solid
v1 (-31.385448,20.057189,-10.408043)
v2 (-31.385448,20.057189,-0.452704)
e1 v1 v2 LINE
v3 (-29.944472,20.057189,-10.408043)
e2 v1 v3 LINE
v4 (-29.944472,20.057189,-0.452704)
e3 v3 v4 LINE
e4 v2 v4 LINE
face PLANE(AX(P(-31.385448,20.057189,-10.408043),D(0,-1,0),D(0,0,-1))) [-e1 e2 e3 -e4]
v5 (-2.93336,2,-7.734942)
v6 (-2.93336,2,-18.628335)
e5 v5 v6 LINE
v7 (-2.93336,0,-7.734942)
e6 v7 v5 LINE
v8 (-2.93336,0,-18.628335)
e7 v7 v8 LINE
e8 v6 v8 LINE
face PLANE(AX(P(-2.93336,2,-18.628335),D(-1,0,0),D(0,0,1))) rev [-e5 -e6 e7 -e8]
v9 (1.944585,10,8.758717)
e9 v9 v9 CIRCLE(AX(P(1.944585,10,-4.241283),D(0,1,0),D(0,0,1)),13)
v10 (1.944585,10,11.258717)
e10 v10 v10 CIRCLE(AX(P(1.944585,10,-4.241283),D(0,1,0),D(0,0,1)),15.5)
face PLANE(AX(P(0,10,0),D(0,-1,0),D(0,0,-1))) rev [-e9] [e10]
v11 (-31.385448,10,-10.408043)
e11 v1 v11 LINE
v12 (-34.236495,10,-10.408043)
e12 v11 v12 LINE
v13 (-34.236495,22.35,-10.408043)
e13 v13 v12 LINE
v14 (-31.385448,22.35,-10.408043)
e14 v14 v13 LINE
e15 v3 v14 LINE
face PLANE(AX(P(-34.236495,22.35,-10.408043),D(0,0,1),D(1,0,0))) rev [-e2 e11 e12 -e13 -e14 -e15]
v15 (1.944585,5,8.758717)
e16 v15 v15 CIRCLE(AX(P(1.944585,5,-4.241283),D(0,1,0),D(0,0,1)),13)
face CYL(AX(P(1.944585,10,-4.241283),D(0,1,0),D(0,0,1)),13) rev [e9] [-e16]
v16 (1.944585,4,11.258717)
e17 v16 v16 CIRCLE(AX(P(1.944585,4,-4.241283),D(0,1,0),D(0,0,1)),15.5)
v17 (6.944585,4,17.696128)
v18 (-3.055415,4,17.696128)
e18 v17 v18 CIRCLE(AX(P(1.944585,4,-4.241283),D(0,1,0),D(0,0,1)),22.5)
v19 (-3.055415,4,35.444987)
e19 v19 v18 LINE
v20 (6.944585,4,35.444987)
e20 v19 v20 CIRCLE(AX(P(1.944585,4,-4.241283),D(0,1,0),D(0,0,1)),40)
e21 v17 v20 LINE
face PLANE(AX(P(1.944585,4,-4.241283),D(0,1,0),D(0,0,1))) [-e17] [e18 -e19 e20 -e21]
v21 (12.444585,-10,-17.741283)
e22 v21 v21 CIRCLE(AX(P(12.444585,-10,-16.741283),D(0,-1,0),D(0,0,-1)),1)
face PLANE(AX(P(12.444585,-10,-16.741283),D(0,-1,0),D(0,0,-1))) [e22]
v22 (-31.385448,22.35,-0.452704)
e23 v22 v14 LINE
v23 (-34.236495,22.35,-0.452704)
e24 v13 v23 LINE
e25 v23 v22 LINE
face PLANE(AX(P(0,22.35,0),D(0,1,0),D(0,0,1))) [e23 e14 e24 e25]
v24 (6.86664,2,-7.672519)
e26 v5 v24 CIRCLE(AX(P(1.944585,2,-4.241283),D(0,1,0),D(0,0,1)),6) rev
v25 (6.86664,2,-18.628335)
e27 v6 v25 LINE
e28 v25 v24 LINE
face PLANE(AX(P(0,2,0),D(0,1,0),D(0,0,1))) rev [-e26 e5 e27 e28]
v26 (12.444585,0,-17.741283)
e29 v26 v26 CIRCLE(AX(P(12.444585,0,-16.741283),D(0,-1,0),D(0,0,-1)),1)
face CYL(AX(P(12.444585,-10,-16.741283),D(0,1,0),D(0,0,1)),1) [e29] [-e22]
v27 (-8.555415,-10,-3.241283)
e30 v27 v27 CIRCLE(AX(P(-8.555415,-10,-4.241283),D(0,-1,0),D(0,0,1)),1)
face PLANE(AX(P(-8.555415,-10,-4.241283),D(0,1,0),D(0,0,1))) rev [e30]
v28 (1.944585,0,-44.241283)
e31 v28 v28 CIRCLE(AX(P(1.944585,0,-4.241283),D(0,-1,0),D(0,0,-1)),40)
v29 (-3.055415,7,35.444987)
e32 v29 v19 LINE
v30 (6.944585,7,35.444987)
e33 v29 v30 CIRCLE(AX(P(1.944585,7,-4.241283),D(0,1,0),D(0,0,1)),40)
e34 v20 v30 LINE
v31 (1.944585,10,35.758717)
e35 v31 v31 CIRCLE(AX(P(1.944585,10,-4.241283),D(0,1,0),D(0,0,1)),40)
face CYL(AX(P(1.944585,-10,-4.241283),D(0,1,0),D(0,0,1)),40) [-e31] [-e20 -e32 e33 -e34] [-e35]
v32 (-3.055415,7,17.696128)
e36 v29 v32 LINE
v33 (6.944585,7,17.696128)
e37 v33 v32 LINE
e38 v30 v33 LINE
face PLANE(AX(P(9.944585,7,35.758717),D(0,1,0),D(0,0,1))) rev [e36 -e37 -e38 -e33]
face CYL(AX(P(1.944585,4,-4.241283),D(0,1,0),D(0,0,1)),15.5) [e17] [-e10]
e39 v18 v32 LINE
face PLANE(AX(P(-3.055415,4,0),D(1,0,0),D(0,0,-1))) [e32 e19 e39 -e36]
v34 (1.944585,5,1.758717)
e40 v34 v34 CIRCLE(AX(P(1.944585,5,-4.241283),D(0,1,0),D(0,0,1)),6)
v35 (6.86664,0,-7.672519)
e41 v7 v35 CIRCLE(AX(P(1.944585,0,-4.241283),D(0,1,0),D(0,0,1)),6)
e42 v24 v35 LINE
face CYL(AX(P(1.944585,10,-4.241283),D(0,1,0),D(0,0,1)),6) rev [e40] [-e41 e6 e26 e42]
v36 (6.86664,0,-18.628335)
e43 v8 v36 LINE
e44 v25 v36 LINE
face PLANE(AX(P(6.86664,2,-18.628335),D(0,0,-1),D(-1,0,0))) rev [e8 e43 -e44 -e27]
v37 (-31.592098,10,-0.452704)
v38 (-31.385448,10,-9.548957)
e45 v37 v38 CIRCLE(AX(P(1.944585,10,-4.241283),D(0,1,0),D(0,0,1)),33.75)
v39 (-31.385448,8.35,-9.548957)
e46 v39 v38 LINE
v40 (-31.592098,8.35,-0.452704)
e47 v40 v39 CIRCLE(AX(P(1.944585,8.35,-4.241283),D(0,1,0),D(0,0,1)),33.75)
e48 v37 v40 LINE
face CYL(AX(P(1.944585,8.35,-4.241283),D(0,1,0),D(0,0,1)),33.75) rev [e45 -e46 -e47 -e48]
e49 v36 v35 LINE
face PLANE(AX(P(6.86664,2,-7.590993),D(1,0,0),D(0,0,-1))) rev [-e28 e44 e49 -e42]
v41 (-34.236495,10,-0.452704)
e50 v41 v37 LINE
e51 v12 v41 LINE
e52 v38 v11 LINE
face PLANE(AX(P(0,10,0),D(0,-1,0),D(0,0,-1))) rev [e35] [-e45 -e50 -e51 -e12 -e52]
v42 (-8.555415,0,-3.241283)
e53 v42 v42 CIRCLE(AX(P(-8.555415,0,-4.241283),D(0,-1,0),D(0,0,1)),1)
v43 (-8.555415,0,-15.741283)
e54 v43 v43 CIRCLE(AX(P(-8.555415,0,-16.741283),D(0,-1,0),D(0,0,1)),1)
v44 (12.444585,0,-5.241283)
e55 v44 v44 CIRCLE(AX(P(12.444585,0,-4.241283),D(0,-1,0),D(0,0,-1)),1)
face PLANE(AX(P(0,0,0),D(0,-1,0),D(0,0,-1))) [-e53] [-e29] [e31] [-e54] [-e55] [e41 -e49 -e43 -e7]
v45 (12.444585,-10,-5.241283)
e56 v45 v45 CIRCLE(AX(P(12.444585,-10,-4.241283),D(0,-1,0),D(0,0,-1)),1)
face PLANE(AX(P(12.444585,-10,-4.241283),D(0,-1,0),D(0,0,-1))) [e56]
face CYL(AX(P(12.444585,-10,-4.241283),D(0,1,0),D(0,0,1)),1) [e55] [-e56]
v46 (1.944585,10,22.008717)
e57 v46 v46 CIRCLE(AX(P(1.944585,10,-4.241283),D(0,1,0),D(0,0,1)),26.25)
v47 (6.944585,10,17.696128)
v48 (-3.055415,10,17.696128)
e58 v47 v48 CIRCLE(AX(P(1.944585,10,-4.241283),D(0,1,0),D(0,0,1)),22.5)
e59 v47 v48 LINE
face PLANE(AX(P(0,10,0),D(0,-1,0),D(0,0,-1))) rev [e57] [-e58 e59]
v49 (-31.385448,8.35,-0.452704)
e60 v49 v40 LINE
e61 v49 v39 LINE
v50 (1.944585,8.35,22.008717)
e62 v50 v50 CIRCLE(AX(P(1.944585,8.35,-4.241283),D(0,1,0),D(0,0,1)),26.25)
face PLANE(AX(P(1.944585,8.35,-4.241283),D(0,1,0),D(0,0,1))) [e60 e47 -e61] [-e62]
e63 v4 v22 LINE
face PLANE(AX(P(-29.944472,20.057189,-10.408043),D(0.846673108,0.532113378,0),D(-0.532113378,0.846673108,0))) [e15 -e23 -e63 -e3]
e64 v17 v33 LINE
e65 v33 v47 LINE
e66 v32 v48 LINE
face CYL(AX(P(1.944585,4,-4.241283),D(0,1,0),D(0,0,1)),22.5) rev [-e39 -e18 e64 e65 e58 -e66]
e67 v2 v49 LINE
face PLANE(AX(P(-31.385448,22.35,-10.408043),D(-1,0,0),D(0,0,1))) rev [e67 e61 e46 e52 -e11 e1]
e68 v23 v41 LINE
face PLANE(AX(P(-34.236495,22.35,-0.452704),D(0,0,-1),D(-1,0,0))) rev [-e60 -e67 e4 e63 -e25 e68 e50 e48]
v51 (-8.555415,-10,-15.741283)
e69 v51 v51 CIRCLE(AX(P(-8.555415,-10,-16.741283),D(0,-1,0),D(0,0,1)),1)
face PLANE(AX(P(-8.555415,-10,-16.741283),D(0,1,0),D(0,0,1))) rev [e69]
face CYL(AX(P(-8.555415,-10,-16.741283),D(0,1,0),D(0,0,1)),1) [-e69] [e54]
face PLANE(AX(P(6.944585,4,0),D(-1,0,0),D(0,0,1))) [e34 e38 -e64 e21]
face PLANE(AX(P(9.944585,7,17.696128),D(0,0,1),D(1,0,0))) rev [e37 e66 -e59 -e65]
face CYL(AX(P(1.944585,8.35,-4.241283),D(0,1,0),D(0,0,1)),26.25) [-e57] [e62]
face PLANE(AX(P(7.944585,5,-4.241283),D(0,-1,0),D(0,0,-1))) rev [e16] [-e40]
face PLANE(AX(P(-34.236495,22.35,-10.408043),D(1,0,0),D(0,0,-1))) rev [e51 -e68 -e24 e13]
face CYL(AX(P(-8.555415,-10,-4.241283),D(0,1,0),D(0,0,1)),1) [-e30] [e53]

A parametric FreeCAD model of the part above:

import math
import FreeCAD as App
import Part
import Sketcher

doc = App.newDocument("Part")
body = doc.addObject("PartDesign::Body", "Body")

sketch1 = body.newObject("Sketcher::SketchObject", "Sketch")
sketch1.AttachmentSupport = (doc.getObject("XZ_Plane"), [""])
sketch1.MapMode = "FlatFace"
sketch1.addGeometry(Part.LineSegment(App.Vector(-38.055415, -44.241283, 0), App.Vector(-38.055415, 35.758717, 0)), False)
sketch1.addGeometry(Part.LineSegment(App.Vector(-38.055415, 35.758717, 0), App.Vector(41.944585, 35.758717, 0)), False)
sketch1.addGeometry(Part.LineSegment(App.Vector(41.944585, 35.758717, 0), App.Vector(41.944585, -44.241283, 0)), False)
sketch1.addGeometry(Part.LineSegment(App.Vector(41.944585, -44.241283, 0), App.Vector(-38.055415, -44.241283, 0)), False)
sketch1.addConstraint(Sketcher.Constraint("Coincident", 0, 2, 1, 1))
sketch1.addConstraint(Sketcher.Constraint("Coincident", 1, 2, 2, 1))
sketch1.addConstraint(Sketcher.Constraint("Coincident", 2, 2, 3, 1))
sketch1.addConstraint(Sketcher.Constraint("Coincident", 3, 2, 0, 1))
sketch1.addConstraint(Sketcher.Constraint("Vertical", 0))
sketch1.addConstraint(Sketcher.Constraint("Horizontal", 1))
sketch1.addConstraint(Sketcher.Constraint("Vertical", 2))
sketch1.addConstraint(Sketcher.Constraint("Horizontal", 3))
sketch1.addConstraint(Sketcher.Constraint("Equal", 3, 0))
sketch1.addConstraint(Sketcher.Constraint("DistanceX", 1, 1, 1, 2, 80.0))
sketch1.addConstraint(Sketcher.Constraint("DistanceX", 0, 2, -1, 1, 38.055415))
sketch1.addConstraint(Sketcher.Constraint("DistanceY", -1, 1, 0, 2, 35.758717))
pad1 = body.newObject("PartDesign::Pad", "Pad")
pad1.Profile = sketch1
pad1.Length = 10
pad1.Reversed = True

sketch2 = body.newObject("Sketcher::SketchObject", "Sketch001")
sketch2.AttachmentSupport = (doc.getObject("XZ_Plane"), [""])
sketch2.MapMode = "FlatFace"
sketch2.AttachmentOffset = App.Placement(App.Vector(0, 0, -10), App.Rotation())
sketch2.addGeometry(Part.Circle(App.Vector(1.944585, -4.241283, 0), App.Vector(0, 0, 1), 6), False)
sketch2.addConstraint(Sketcher.Constraint("Diameter", 0, 12.0))
sketch2.addConstraint(Sketcher.Constraint("DistanceX", -1, 1, 0, 3, 1.944585))
sketch2.addConstraint(Sketcher.Constraint("DistanceY", 0, 3, -1, 1, 4.241283))
doc.recompute()
hole = body.newObject("PartDesign::Hole", "Hole")
hole.Profile = sketch2
hole.ThreadType = "None"
hole.Diameter = 12
hole.DepthType = "ThroughAll"
hole.HoleCutType = "Counterbore"
hole.HoleCutDiameter = 26
hole.HoleCutDepth = 5
hole.Reversed = True

sketch3 = body.newObject("Sketcher::SketchObject", "Sketch002")
sketch3.AttachmentSupport = (doc.getObject("XZ_Plane"), [""])
sketch3.MapMode = "FlatFace"
sketch3.addGeometry(Part.Circle(App.Vector(12.444585, -16.741283, 0), App.Vector(0, 0, 1), 1), False)
sketch3.addGeometry(Part.Circle(App.Vector(12.444585, -4.241283, 0), App.Vector(0, 0, 1), 1), False)
sketch3.addGeometry(Part.Circle(App.Vector(-8.555415, -16.741283, 0), App.Vector(0, 0, 1), 1), False)
sketch3.addGeometry(Part.Circle(App.Vector(-8.555415, -4.241283, 0), App.Vector(0, 0, 1), 1), False)
sketch3.addConstraint(Sketcher.Constraint("Equal", 0, 1))
sketch3.addConstraint(Sketcher.Constraint("Equal", 1, 2))
sketch3.addConstraint(Sketcher.Constraint("Equal", 2, 3))
sketch3.addConstraint(Sketcher.Constraint("Horizontal", 0, 3, 2, 3))
sketch3.addConstraint(Sketcher.Constraint("Horizontal", 1, 3, 3, 3))
sketch3.addConstraint(Sketcher.Constraint("Vertical", 0, 3, 1, 3))
sketch3.addConstraint(Sketcher.Constraint("Vertical", 2, 3, 3, 3))
sketch3.addConstraint(Sketcher.Constraint("Diameter", 0, 2.0))
sketch3.addConstraint(Sketcher.Constraint("DistanceX", 2, 3, 0, 3, 21.0))
sketch3.addConstraint(Sketcher.Constraint("DistanceY", 0, 3, 1, 3, 12.5))
sketch3.addConstraint(Sketcher.Constraint("DistanceX", -1, 1, 0, 3, 12.444585))
sketch3.addConstraint(Sketcher.Constraint("DistanceY", 0, 3, -1, 1, 16.741283))
pad2 = body.newObject("PartDesign::Pad", "Pad001")
pad2.Profile = sketch3
pad2.Length = 10

sketch4 = body.newObject("Sketcher::SketchObject", "Sketch003")
sketch4.AttachmentSupport = (doc.getObject("XZ_Plane"), [""])
sketch4.MapMode = "FlatFace"
sketch4.AttachmentOffset = App.Placement(App.Vector(0, 0, -10), App.Rotation())
sketch4.addGeometry(Part.Circle(App.Vector(1.944585, -4.241283, 0), App.Vector(0, 0, 1), 22.5), False)
sketch4.addGeometry(Part.Circle(App.Vector(1.944585, -4.241283, 0), App.Vector(0, 0, 1), 15.5), False)
sketch4.addConstraint(Sketcher.Constraint("Coincident", 1, 3, 0, 3))
sketch4.addConstraint(Sketcher.Constraint("Diameter", 0, 45.0))
sketch4.addConstraint(Sketcher.Constraint("Diameter", 1, 31.0))
sketch4.addConstraint(Sketcher.Constraint("DistanceX", -1, 1, 0, 3, 1.944585))
sketch4.addConstraint(Sketcher.Constraint("DistanceY", 0, 3, -1, 1, 4.241283))
pocket1 = body.newObject("PartDesign::Pocket", "Pocket")
pocket1.Profile = sketch4
pocket1.Length = 6
pocket1.Reversed = True

sketch5 = body.newObject("Sketcher::SketchObject", "Sketch004")
sketch5.AttachmentSupport = (doc.getObject("XZ_Plane"), [""])
sketch5.MapMode = "FlatFace"
sketch5.AttachmentOffset = App.Placement(App.Vector(0, 0, -10), App.Rotation())
sketch5.addGeometry(Part.LineSegment(App.Vector(6.944585, 35.758717, 0), App.Vector(6.944585, 17.696128, 0)), False)
sketch5.addGeometry(Part.ArcOfCircle(Part.Circle(App.Vector(1.944585, -4.241283, 0), App.Vector(0, 0, 1), 22.5), math.radians(77.160412), math.radians(102.839588)), False)
sketch5.addGeometry(Part.LineSegment(App.Vector(-3.055415, 17.696128, 0), App.Vector(-3.055415, 35.758717, 0)), False)
sketch5.addGeometry(Part.LineSegment(App.Vector(-3.055415, 35.758717, 0), App.Vector(6.944585, 35.758717, 0)), False)
sketch5.addConstraint(Sketcher.Constraint("Coincident", 0, 2, 1, 1))
sketch5.addConstraint(Sketcher.Constraint("Coincident", 1, 2, 2, 1))
sketch5.addConstraint(Sketcher.Constraint("Coincident", 2, 2, 3, 1))
sketch5.addConstraint(Sketcher.Constraint("Coincident", 3, 2, 0, 1))
sketch5.addConstraint(Sketcher.Constraint("Vertical", 0))
sketch5.addConstraint(Sketcher.Constraint("Vertical", 2))
sketch5.addConstraint(Sketcher.Constraint("Horizontal", 3))
sketch5.addConstraint(Sketcher.Constraint("Horizontal", 0, 2, 1, 2))
sketch5.addConstraint(Sketcher.Constraint("Radius", 1, 22.5))
sketch5.addConstraint(Sketcher.Constraint("DistanceX", 3, 1, 3, 2, 10.0))
sketch5.addConstraint(Sketcher.Constraint("DistanceY", 1, 3, 2, 2, 40.0))
sketch5.addConstraint(Sketcher.Constraint("DistanceX", -1, 1, 1, 3, 1.944585))
sketch5.addConstraint(Sketcher.Constraint("DistanceY", 1, 3, -1, 1, 4.241283))
pocket2 = body.newObject("PartDesign::Pocket", "Pocket001")
pocket2.Profile = sketch5
pocket2.Length = 6
pocket2.Reversed = True

sketch6 = body.newObject("Sketcher::SketchObject", "Sketch005")
sketch6.AttachmentSupport = (doc.getObject("YZ_Plane"), [""])
sketch6.MapMode = "FlatFace"
sketch6.AttachmentOffset = App.Placement(App.Vector(0, 0, -3.055415), App.Rotation())
sketch6.addGeometry(Part.LineSegment(App.Vector(10, 35.758717, 0), App.Vector(7, 35.758717, 0)), False)
sketch6.addGeometry(Part.LineSegment(App.Vector(7, 35.758717, 0), App.Vector(7, 17.696128, 0)), False)
sketch6.addGeometry(Part.LineSegment(App.Vector(7, 17.696128, 0), App.Vector(10, 17.696128, 0)), False)
sketch6.addGeometry(Part.LineSegment(App.Vector(10, 17.696128, 0), App.Vector(10, 35.758717, 0)), False)
sketch6.addConstraint(Sketcher.Constraint("Coincident", 0, 2, 1, 1))
sketch6.addConstraint(Sketcher.Constraint("Coincident", 1, 2, 2, 1))
sketch6.addConstraint(Sketcher.Constraint("Coincident", 2, 2, 3, 1))
sketch6.addConstraint(Sketcher.Constraint("Coincident", 3, 2, 0, 1))
sketch6.addConstraint(Sketcher.Constraint("Horizontal", 0))
sketch6.addConstraint(Sketcher.Constraint("Vertical", 1))
sketch6.addConstraint(Sketcher.Constraint("Horizontal", 2))
sketch6.addConstraint(Sketcher.Constraint("Vertical", 3))
sketch6.addConstraint(Sketcher.Constraint("DistanceX", 0, 2, 0, 1, 3.0))
sketch6.addConstraint(Sketcher.Constraint("DistanceX", -1, 1, 0, 2, 7.0))
sketch6.addConstraint(Sketcher.Constraint("DistanceY", 1, 2, 1, 1, 18.062589))
sketch6.addConstraint(Sketcher.Constraint("DistanceY", -1, 1, 0, 2, 35.758717))
pad3 = body.newObject("PartDesign::Pad", "Pad002")
pad3.Profile = sketch6
pad3.Length = 13

sketch7 = body.newObject("Sketcher::SketchObject", "Sketch006")
sketch7.AttachmentSupport = (doc.getObject("XZ_Plane"), [""])
sketch7.MapMode = "FlatFace"
sketch7.AttachmentOffset = App.Placement(App.Vector(0, 0, -10), App.Rotation())
sketch7.addGeometry(Part.Circle(App.Vector(1.944585, -4.241283, 0), App.Vector(0, 0, 1), 33.75), False)
sketch7.addGeometry(Part.Circle(App.Vector(1.944585, -4.241283, 0), App.Vector(0, 0, 1), 26.25), False)
sketch7.addConstraint(Sketcher.Constraint("Coincident", 1, 3, 0, 3))
sketch7.addConstraint(Sketcher.Constraint("Diameter", 0, 67.5))
sketch7.addConstraint(Sketcher.Constraint("Diameter", 1, 52.5))
sketch7.addConstraint(Sketcher.Constraint("DistanceX", -1, 1, 0, 3, 1.944585))
sketch7.addConstraint(Sketcher.Constraint("DistanceY", 0, 3, -1, 1, 4.241283))
pocket3 = body.newObject("PartDesign::Pocket", "Pocket002")
pocket3.Profile = sketch7
pocket3.Length = 1.65
pocket3.Reversed = True

sketch8 = body.newObject("Sketcher::SketchObject", "Sketch007")
sketch8.AttachmentSupport = (doc.getObject("XZ_Plane"), [""])
sketch8.MapMode = "FlatFace"
sketch8.addGeometry(Part.LineSegment(App.Vector(-2.93336, -7.590993, 0), App.Vector(-2.93336, -18.628335, 0)), False)
sketch8.addGeometry(Part.LineSegment(App.Vector(-2.93336, -18.628335, 0), App.Vector(6.86664, -18.628335, 0)), False)
sketch8.addGeometry(Part.LineSegment(App.Vector(6.86664, -18.628335, 0), App.Vector(6.86664, -7.590993, 0)), False)
sketch8.addGeometry(Part.LineSegment(App.Vector(6.86664, -7.590993, 0), App.Vector(-2.93336, -7.590993, 0)), False)
sketch8.addConstraint(Sketcher.Constraint("Coincident", 0, 2, 1, 1))
sketch8.addConstraint(Sketcher.Constraint("Coincident", 1, 2, 2, 1))
sketch8.addConstraint(Sketcher.Constraint("Coincident", 2, 2, 3, 1))
sketch8.addConstraint(Sketcher.Constraint("Coincident", 3, 2, 0, 1))
sketch8.addConstraint(Sketcher.Constraint("Vertical", 0))
sketch8.addConstraint(Sketcher.Constraint("Horizontal", 1))
sketch8.addConstraint(Sketcher.Constraint("Vertical", 2))
sketch8.addConstraint(Sketcher.Constraint("Horizontal", 3))
sketch8.addConstraint(Sketcher.Constraint("DistanceX", 1, 1, 1, 2, 9.8))
sketch8.addConstraint(Sketcher.Constraint("DistanceY", 0, 2, 0, 1, 11.037342))
sketch8.addConstraint(Sketcher.Constraint("DistanceX", 0, 2, -1, 1, 2.93336))
sketch8.addConstraint(Sketcher.Constraint("DistanceY", 0, 2, -1, 1, 18.628335))
pocket4 = body.newObject("PartDesign::Pocket", "Pocket003")
pocket4.Profile = sketch8
pocket4.Length = 2

sketch9 = body.newObject("Sketcher::SketchObject", "Sketch008")
sketch9.AttachmentSupport = (doc.getObject("XZ_Plane"), [""])
sketch9.MapMode = "FlatFace"
sketch9.AttachmentOffset = App.Placement(App.Vector(0, 0, -10), App.Rotation())
sketch9.addGeometry(Part.ArcOfCircle(Part.Circle(App.Vector(1.944585, -4.241283, 0), App.Vector(0, 0, 1), 40), math.radians(180), math.radians(270)), False)
sketch9.addGeometry(Part.LineSegment(App.Vector(1.944585, -44.241283, 0), App.Vector(-38.055415, -44.241283, 0)), False)
sketch9.addGeometry(Part.LineSegment(App.Vector(-38.055415, -44.241283, 0), App.Vector(-38.055415, -4.241283, 0)), False)
sketch9.addGeometry(Part.ArcOfCircle(Part.Circle(App.Vector(1.944585, -4.241283, 0), App.Vector(0, 0, 1), 40), math.radians(90), math.radians(180)), False)
sketch9.addGeometry(Part.LineSegment(App.Vector(-38.055415, -4.241283, 0), App.Vector(-38.055415, 35.758717, 0)), False)
sketch9.addGeometry(Part.LineSegment(App.Vector(-38.055415, 35.758717, 0), App.Vector(1.944585, 35.758717, 0)), False)
sketch9.addGeometry(Part.LineSegment(App.Vector(41.944585, 35.758717, 0), App.Vector(41.944585, -4.241283, 0)), False)
sketch9.addGeometry(Part.ArcOfCircle(Part.Circle(App.Vector(1.944585, -4.241283, 0), App.Vector(0, 0, 1), 40), math.radians(0), math.radians(90)), False)
sketch9.addGeometry(Part.LineSegment(App.Vector(1.944585, 35.758717, 0), App.Vector(41.944585, 35.758717, 0)), False)
sketch9.addGeometry(Part.LineSegment(App.Vector(41.944585, -44.241283, 0), App.Vector(1.944585, -44.241283, 0)), False)
sketch9.addGeometry(Part.ArcOfCircle(Part.Circle(App.Vector(1.944585, -4.241283, 0), App.Vector(0, 0, 1), 40), math.radians(-90), math.radians(0)), False)
sketch9.addGeometry(Part.LineSegment(App.Vector(41.944585, -4.241283, 0), App.Vector(41.944585, -44.241283, 0)), False)
sketch9.addConstraint(Sketcher.Constraint("Tangent", 0, 2, 1, 1))
sketch9.addConstraint(Sketcher.Constraint("Coincident", 1, 2, 2, 1))
sketch9.addConstraint(Sketcher.Constraint("Tangent", 2, 2, 0, 1))
sketch9.addConstraint(Sketcher.Constraint("Tangent", 3, 2, 4, 1))
sketch9.addConstraint(Sketcher.Constraint("Coincident", 4, 2, 5, 1))
sketch9.addConstraint(Sketcher.Constraint("Tangent", 5, 2, 3, 1))
sketch9.addConstraint(Sketcher.Constraint("Tangent", 6, 2, 7, 1))
sketch9.addConstraint(Sketcher.Constraint("Tangent", 7, 2, 8, 1))
sketch9.addConstraint(Sketcher.Constraint("Coincident", 8, 2, 6, 1))
sketch9.addConstraint(Sketcher.Constraint("Tangent", 9, 2, 10, 1))
sketch9.addConstraint(Sketcher.Constraint("Tangent", 10, 2, 11, 1))
sketch9.addConstraint(Sketcher.Constraint("Coincident", 11, 2, 9, 1))
sketch9.addConstraint(Sketcher.Constraint("Horizontal", 1))
sketch9.addConstraint(Sketcher.Constraint("Vertical", 2))
sketch9.addConstraint(Sketcher.Constraint("Vertical", 4))
sketch9.addConstraint(Sketcher.Constraint("Horizontal", 5))
sketch9.addConstraint(Sketcher.Constraint("Vertical", 6))
sketch9.addConstraint(Sketcher.Constraint("Horizontal", 8))
sketch9.addConstraint(Sketcher.Constraint("Horizontal", 9))
sketch9.addConstraint(Sketcher.Constraint("Vertical", 11))
sketch9.addConstraint(Sketcher.Constraint("Coincident", 3, 3, 0, 3))
sketch9.addConstraint(Sketcher.Constraint("Coincident", 7, 3, 0, 3))
sketch9.addConstraint(Sketcher.Constraint("Coincident", 10, 3, 0, 3))
sketch9.addConstraint(Sketcher.Constraint("Equal", 0, 3))
sketch9.addConstraint(Sketcher.Constraint("Equal", 3, 7))
sketch9.addConstraint(Sketcher.Constraint("Equal", 7, 10))
sketch9.addConstraint(Sketcher.Constraint("Radius", 0, 40.0))
sketch9.addConstraint(Sketcher.Constraint("DistanceX", -1, 1, 0, 3, 1.944585))
sketch9.addConstraint(Sketcher.Constraint("DistanceY", 0, 3, -1, 1, 4.241283))
pocket5 = body.newObject("PartDesign::Pocket", "Pocket004")
pocket5.Profile = sketch9
pocket5.Length = 20
pocket5.Reversed = True

sketch10 = body.newObject("Sketcher::SketchObject", "Sketch009")
sketch10.AttachmentSupport = (doc.getObject("XZ_Plane"), [""])
sketch10.MapMode = "FlatFace"
sketch10.AttachmentOffset = App.Placement(App.Vector(0, 0, -8.35), App.Rotation())
sketch10.addGeometry(Part.LineSegment(App.Vector(-34.236495, -10.408043, 0), App.Vector(-34.236495, -0.452704, 0)), False)
sketch10.addGeometry(Part.LineSegment(App.Vector(-34.236495, -0.452704, 0), App.Vector(-31.385448, -0.452704, 0)), False)
sketch10.addGeometry(Part.LineSegment(App.Vector(-31.385448, -0.452704, 0), App.Vector(-31.385448, -10.408043, 0)), False)
sketch10.addGeometry(Part.LineSegment(App.Vector(-31.385448, -10.408043, 0), App.Vector(-34.236495, -10.408043, 0)), False)
sketch10.addConstraint(Sketcher.Constraint("Coincident", 0, 2, 1, 1))
sketch10.addConstraint(Sketcher.Constraint("Coincident", 1, 2, 2, 1))
sketch10.addConstraint(Sketcher.Constraint("Coincident", 2, 2, 3, 1))
sketch10.addConstraint(Sketcher.Constraint("Coincident", 3, 2, 0, 1))
sketch10.addConstraint(Sketcher.Constraint("Vertical", 0))
sketch10.addConstraint(Sketcher.Constraint("Horizontal", 1))
sketch10.addConstraint(Sketcher.Constraint("Vertical", 2))
sketch10.addConstraint(Sketcher.Constraint("Horizontal", 3))
sketch10.addConstraint(Sketcher.Constraint("DistanceY", 0, 1, 0, 2, 9.955339))
sketch10.addConstraint(Sketcher.Constraint("DistanceX", 1, 1, 1, 2, 2.851048))
sketch10.addConstraint(Sketcher.Constraint("DistanceX", 0, 2, -1, 1, 34.236495))
sketch10.addConstraint(Sketcher.Constraint("DistanceY", 0, 2, -1, 1, 0.452704))
pad4 = body.newObject("PartDesign::Pad", "Pad003")
pad4.Profile = sketch10
pad4.Length = 14
pad4.Reversed = True

sketch11 = body.newObject("Sketcher::SketchObject", "Sketch010")
sketch11.AttachmentSupport = (doc.getObject("XY_Plane"), [""])
sketch11.MapMode = "FlatFace"
sketch11.AttachmentOffset = App.Placement(App.Vector(0, 0, -10.408043), App.Rotation())
sketch11.addGeometry(Part.LineSegment(App.Vector(-31.385448, 22.35, 0), App.Vector(-31.385448, 20.057189, 0)), False)
sketch11.addGeometry(Part.LineSegment(App.Vector(-31.385448, 20.057189, 0), App.Vector(-29.944472, 20.057189, 0)), False)
sketch11.addGeometry(Part.LineSegment(App.Vector(-29.944472, 20.057189, 0), App.Vector(-31.385448, 22.35, 0)), False)
sketch11.addConstraint(Sketcher.Constraint("Coincident", 0, 2, 1, 1))
sketch11.addConstraint(Sketcher.Constraint("Coincident", 1, 2, 2, 1))
sketch11.addConstraint(Sketcher.Constraint("Coincident", 2, 2, 0, 1))
sketch11.addConstraint(Sketcher.Constraint("Vertical", 0))
sketch11.addConstraint(Sketcher.Constraint("Horizontal", 1))
sketch11.addConstraint(Sketcher.Constraint("DistanceY", -1, 1, 2, 2, 22.35))
sketch11.addConstraint(Sketcher.Constraint("DistanceY", 0, 2, 0, 1, 2.292811))
sketch11.addConstraint(Sketcher.Constraint("DistanceX", 1, 1, 1, 2, 1.440976))
sketch11.addConstraint(Sketcher.Constraint("DistanceX", 1, 2, -1, 1, 29.944472))
pad5 = body.newObject("PartDesign::Pad", "Pad004")
pad5.Profile = sketch11
pad5.Length = 9.955339

doc.recompute()
